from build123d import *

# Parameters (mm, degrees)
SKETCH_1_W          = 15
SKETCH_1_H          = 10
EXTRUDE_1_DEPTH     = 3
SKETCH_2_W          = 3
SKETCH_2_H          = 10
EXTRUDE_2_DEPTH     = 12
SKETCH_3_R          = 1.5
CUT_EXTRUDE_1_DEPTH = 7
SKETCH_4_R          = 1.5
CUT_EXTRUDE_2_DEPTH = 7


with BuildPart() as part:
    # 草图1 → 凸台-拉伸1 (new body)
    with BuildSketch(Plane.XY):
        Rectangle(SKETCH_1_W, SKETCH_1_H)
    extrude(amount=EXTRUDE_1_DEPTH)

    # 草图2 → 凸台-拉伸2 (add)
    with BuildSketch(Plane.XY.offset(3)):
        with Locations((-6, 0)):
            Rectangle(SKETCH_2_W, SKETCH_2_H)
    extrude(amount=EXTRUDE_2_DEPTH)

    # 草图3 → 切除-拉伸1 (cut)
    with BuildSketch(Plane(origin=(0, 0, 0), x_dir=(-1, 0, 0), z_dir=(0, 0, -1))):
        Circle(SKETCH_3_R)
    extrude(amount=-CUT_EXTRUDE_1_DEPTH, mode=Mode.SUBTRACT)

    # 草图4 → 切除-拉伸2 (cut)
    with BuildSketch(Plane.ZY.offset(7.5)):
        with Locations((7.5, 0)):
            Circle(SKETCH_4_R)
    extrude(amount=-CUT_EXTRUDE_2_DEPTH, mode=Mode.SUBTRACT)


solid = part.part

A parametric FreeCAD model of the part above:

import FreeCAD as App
import Part
import Sketcher
from FreeCAD import Vector
Q = App.Units.Quantity

doc = App.newDocument("Part")
params = doc.addObject("Spreadsheet::Sheet", "Params")
for row, (alias, value) in enumerate([
    ("sketch1_width", "15 mm"),
    ("sketch1_height", "10 mm"),
    ("pad1_length", "3 mm"),
    ("sketch2_width", "3 mm"),
    ("sketch2_height", "10 mm"),
    ("pad2_length", "12 mm"),
    ("sketch3_diameter", "3 mm"),
    ("pocket1_length", "7 mm"),
    ("sketch4_diameter", "3 mm"),
    ("pocket2_length", "7 mm"),
], start=1):
    params.set(f"A{row}", alias)
    params.set(f"B{row}", "=" + value)
    params.setAlias(f"B{row}", alias)

body = doc.addObject("PartDesign::Body", "Body")

sketch1 = body.newObject("Sketcher::SketchObject", "Sketch")
sketch1.AttachmentSupport = (doc.getObject("XY_Plane"), [""])
sketch1.MapMode = "FlatFace"
sketch1.addGeometry([
    Part.LineSegment(Vector(-7.5, 5, 0), Vector(-7.5, -5, 0)),
    Part.LineSegment(Vector(-7.5, -5, 0), Vector(7.5, -5, 0)),
    Part.LineSegment(Vector(7.5, -5, 0), Vector(7.5, 5, 0)),
    Part.LineSegment(Vector(7.5, 5, 0), Vector(-7.5, 5, 0)),
], False)
sketch1.addConstraint([
    Sketcher.Constraint("Coincident", 0, 2, 1, 1),
    Sketcher.Constraint("Coincident", 1, 2, 2, 1),
    Sketcher.Constraint("Coincident", 2, 2, 3, 1),
    Sketcher.Constraint("Coincident", 3, 2, 0, 1),
    Sketcher.Constraint("Vertical", 0),
    Sketcher.Constraint("Horizontal", 1),
    Sketcher.Constraint("Vertical", 2),
    Sketcher.Constraint("Horizontal", 3),
    Sketcher.Constraint("Symmetric", 0, 2, 2, 2, -1, 1),
    Sketcher.Constraint("DistanceX", 1, 1, 1, 2, Q("15 mm")),
    Sketcher.Constraint("DistanceY", 0, 2, 0, 1, Q("10 mm")),
])
sketch1.setExpression("Constraints[9]", "Params.sketch1_width")
sketch1.setExpression("Constraints[10]", "Params.sketch1_height")
pad1 = body.newObject("PartDesign::Pad", "Pad")
pad1.Profile = sketch1
pad1.setExpression("Length", "Params.pad1_length")

sketch2 = body.newObject("Sketcher::SketchObject", "Sketch001")
sketch2.AttachmentSupport = (doc.getObject("XY_Plane"), [""])
sketch2.MapMode = "FlatFace"
sketch2.AttachmentOffset = App.Placement(Vector(0, 0, 3), App.Rotation())
sketch2.addGeometry([
    Part.LineSegment(Vector(-7.5, 5, 0), Vector(-7.5, -5, 0)),
    Part.LineSegment(Vector(-7.5, -5, 0), Vector(-4.5, -5, 0)),
    Part.LineSegment(Vector(-4.5, -5, 0), Vector(-4.5, 5, 0)),
    Part.LineSegment(Vector(-4.5, 5, 0), Vector(-7.5, 5, 0)),
], False)
sketch2.addConstraint([
    Sketcher.Constraint("Coincident", 0, 2, 1, 1),
    Sketcher.Constraint("Coincident", 1, 2, 2, 1),
    Sketcher.Constraint("Coincident", 2, 2, 3, 1),
    Sketcher.Constraint("Coincident", 3, 2, 0, 1),
    Sketcher.Constraint("Vertical", 0),
    Sketcher.Constraint("Horizontal", 1),
    Sketcher.Constraint("Vertical", 2),
    Sketcher.Constraint("Horizontal", 3),
    Sketcher.Constraint("DistanceX", 1, 1, 1, 2, Q("3 mm")),
    Sketcher.Constraint("DistanceY", 0, 2, 0, 1, Q("10 mm")),
    Sketcher.Constraint("DistanceY", 0, 2, -1, 1, Q("5 mm")),
    Sketcher.Constraint("DistanceX", 0, 2, -1, 1, Q("7.5 mm")),
])
sketch2.setExpression("Constraints[8]", "Params.sketch2_width")
sketch2.setExpression("Constraints[9]", "Params.sketch2_height")
pad2 = body.newObject("PartDesign::Pad", "Pad001")
pad2.Profile = sketch2
pad2.setExpression("Length", "Params.pad2_length")

sketch3 = body.newObject("Sketcher::SketchObject", "Sketch002")
sketch3.AttachmentSupport = (doc.getObject("XY_Plane"), [""])
sketch3.MapMode = "FlatFace"
sketch3.addGeometry(Part.Circle(Vector(0, 0, 0), Vector(0, 0, 1), 1.5), False)
sketch3.addConstraint([
    Sketcher.Constraint("Coincident", 0, 3, -1, 1),
    Sketcher.Constraint("Diameter", 0, Q("3 mm")),
])
sketch3.setExpression("Constraints[1]", "Params.sketch3_diameter")
pocket1 = body.newObject("PartDesign::Pocket", "Pocket")
pocket1.Profile = sketch3
pocket1.setExpression("Length", "Params.pocket1_length")
pocket1.Reversed = True

sketch4 = body.newObject("Sketcher::SketchObject", "Sketch003")
sketch4.AttachmentSupport = (doc.getObject("YZ_Plane"), [""])
sketch4.MapMode = "FlatFace"
sketch4.AttachmentOffset = App.Placement(Vector(0, 0, -7.5), App.Rotation())
sketch4.addGeometry(Part.Circle(Vector(0, 7.5, 0), Vector(0, 0, 1), 1.5), False)
sketch4.addConstraint([
    Sketcher.Constraint("PointOnObject", 0, 3, -2),
    Sketcher.Constraint("Diameter", 0, Q("3 mm")),
    Sketcher.Constraint("DistanceY", -1, 1, 0, 3, Q("7.5 mm")),
])
sketch4.setExpression("Constraints[1]", "Params.sketch4_diameter")
pocket2 = body.newObject("PartDesign::Pocket", "Pocket001")
pocket2.Profile = sketch4
pocket2.setExpression("Length", "Params.pocket2_length")
pocket2.Reversed = True

doc.recompute()
